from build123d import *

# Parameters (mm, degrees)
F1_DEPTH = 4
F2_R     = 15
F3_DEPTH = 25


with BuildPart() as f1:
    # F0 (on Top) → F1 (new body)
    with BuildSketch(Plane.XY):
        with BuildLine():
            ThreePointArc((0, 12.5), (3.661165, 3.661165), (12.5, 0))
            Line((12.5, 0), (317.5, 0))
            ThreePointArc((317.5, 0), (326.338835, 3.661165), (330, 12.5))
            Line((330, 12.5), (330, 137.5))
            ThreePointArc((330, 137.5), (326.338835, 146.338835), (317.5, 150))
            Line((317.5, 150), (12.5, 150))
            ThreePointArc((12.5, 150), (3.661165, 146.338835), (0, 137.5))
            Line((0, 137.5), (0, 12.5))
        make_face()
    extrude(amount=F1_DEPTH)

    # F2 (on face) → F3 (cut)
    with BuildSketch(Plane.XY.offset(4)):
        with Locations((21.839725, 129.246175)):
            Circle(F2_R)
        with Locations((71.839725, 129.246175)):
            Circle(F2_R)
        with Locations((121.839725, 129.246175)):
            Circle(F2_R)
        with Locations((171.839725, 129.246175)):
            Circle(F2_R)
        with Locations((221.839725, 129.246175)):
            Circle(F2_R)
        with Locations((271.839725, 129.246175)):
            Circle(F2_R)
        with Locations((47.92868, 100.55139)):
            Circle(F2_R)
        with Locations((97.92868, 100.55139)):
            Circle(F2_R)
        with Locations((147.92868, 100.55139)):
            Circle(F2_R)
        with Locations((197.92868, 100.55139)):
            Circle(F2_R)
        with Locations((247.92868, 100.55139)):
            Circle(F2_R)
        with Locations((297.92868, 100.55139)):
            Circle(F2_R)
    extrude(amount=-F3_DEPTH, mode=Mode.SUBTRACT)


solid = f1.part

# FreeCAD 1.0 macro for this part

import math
import FreeCAD as App
import Part
import Sketcher
from FreeCAD import Vector
Q = App.Units.Quantity

doc = App.newDocument("Part")
body = doc.addObject("PartDesign::Body", "Body")

sketch1 = body.newObject("Sketcher::SketchObject", "Sketch")
sketch1.AttachmentSupport = (doc.getObject("XY_Plane"), [""])
sketch1.MapMode = "FlatFace"
sketch1.addGeometry([
    Part.ArcOfCircle(Part.Circle(Vector(12.499999, 12.499999, 0), Vector(0, 0, 1), 12.499999), math.radians(179.999996), math.radians(270.000004)),
    Part.LineSegment(Vector(12.5, 0, 0), Vector(317.5, 0, 0)),
    Part.ArcOfCircle(Part.Circle(Vector(317.500001, 12.499999, 0), Vector(0, 0, 1), 12.499999), math.radians(-90.000004), math.radians(0.000004)),
    Part.LineSegment(Vector(330, 12.5, 0), Vector(330, 137.5, 0)),
    Part.ArcOfCircle(Part.Circle(Vector(317.500001, 137.500001, 0), Vector(0, 0, 1), 12.499999), math.radians(-0.000004), math.radians(90.000004)),
    Part.LineSegment(Vector(317.5, 150, 0), Vector(12.5, 150, 0)),
    Part.ArcOfCircle(Part.Circle(Vector(12.499999, 137.500001, 0), Vector(0, 0, 1), 12.499999), math.radians(89.999996), math.radians(180.000004)),
    Part.LineSegment(Vector(0, 137.5, 0), Vector(0, 12.5, 0)),
], False)
sketch1.addConstraint([
    Sketcher.Constraint("Tangent", 0, 2, 1, 1),
    Sketcher.Constraint("Tangent", 1, 2, 2, 1),
    Sketcher.Constraint("Tangent", 2, 2, 3, 1),
    Sketcher.Constraint("Tangent", 3, 2, 4, 1),
    Sketcher.Constraint("Tangent", 4, 2, 5, 1),
    Sketcher.Constraint("Tangent", 5, 2, 6, 1),
    Sketcher.Constraint("Tangent", 6, 2, 7, 1),
    Sketcher.Constraint("Tangent", 7, 2, 0, 1),
    Sketcher.Constraint("Horizontal", 1),
    Sketcher.Constraint("Vertical", 3),
    Sketcher.Constraint("Horizontal", 5),
    Sketcher.Constraint("Vertical", 7),
    Sketcher.Constraint("Equal", 0, 2),
    Sketcher.Constraint("Equal", 2, 4),
    Sketcher.Constraint("Equal", 4, 6),
    Sketcher.Constraint("PointOnObject", 0, 2, -1),
    Sketcher.Constraint("PointOnObject", 6, 2, -2),
    Sketcher.Constraint("Radius", 0, Q("12.499999 mm")),
    Sketcher.Constraint("DistanceX", 1, 1, 1, 2, Q("305 mm")),
    Sketcher.Constraint("DistanceY", 3, 1, 3, 2, Q("125 mm")),
])
pad1 = body.newObject("PartDesign::Pad", "Pad")
pad1.Profile = sketch1
pad1.Length = 4

sketch2 = body.newObject("Sketcher::SketchObject", "Sketch001")
sketch2.AttachmentSupport = (doc.getObject("XY_Plane"), [""])
sketch2.MapMode = "FlatFace"
sketch2.AttachmentOffset = App.Placement(Vector(0, 0, 4), App.Rotation())
sketch2.addGeometry([
    Part.Circle(Vector(21.839725, 129.246175, 0), Vector(0, 0, 1), 15),
    Part.Circle(Vector(71.839725, 129.246175, 0), Vector(0, 0, 1), 15),
    Part.Circle(Vector(121.839725, 129.246175, 0), Vector(0, 0, 1), 15),
    Part.Circle(Vector(171.839725, 129.246175, 0), Vector(0, 0, 1), 15),
    Part.Circle(Vector(221.839725, 129.246175, 0), Vector(0, 0, 1), 15),
    Part.Circle(Vector(271.839725, 129.246175, 0), Vector(0, 0, 1), 15),
    Part.Circle(Vector(47.92868, 100.55139, 0), Vector(0, 0, 1), 15),
    Part.Circle(Vector(97.92868, 100.55139, 0), Vector(0, 0, 1), 15),
    Part.Circle(Vector(147.92868, 100.55139, 0), Vector(0, 0, 1), 15),
    Part.Circle(Vector(197.92868, 100.55139, 0), Vector(0, 0, 1), 15),
    Part.Circle(Vector(247.92868, 100.55139, 0), Vector(0, 0, 1), 15),
    Part.Circle(Vector(297.92868, 100.55139, 0), Vector(0, 0, 1), 15),
], False)
sketch2.addConstraint([
    Sketcher.Constraint("Equal", 0, 1),
    Sketcher.Constraint("Equal", 1, 2),
    Sketcher.Constraint("Equal", 2, 3),
    Sketcher.Constraint("Equal", 3, 4),
    Sketcher.Constraint("Equal", 4, 5),
    Sketcher.Constraint("Equal", 5, 6),
    Sketcher.Constraint("Equal", 6, 7),
    Sketcher.Constraint("Equal", 7, 8),
    Sketcher.Constraint("Equal", 8, 9),
    Sketcher.Constraint("Equal", 9, 10),
    Sketcher.Constraint("Equal", 10, 11),
    Sketcher.Constraint("Horizontal", 0, 3, 1, 3),
    Sketcher.Constraint("Horizontal", 1, 3, 2, 3),
    Sketcher.Constraint("Horizontal", 2, 3, 3, 3),
    Sketcher.Constraint("Horizontal", 3, 3, 4, 3),
    Sketcher.Constraint("Horizontal", 4, 3, 5, 3),
    Sketcher.Constraint("Horizontal", 6, 3, 7, 3),
    Sketcher.Constraint("Horizontal", 7, 3, 8, 3),
    Sketcher.Constraint("Horizontal", 8, 3, 9, 3),
    Sketcher.Constraint("Horizontal", 9, 3, 10, 3),
    Sketcher.Constraint("Horizontal", 10, 3, 11, 3),
    Sketcher.Constraint("Diameter", 0, Q("30 mm")),
    Sketcher.Constraint("DistanceX", 0, 3, 1, 3, Q("50 mm")),
    Sketcher.Constraint("DistanceX", 1, 3, 2, 3, Q("50 mm")),
    Sketcher.Constraint("DistanceX", 2, 3, 3, 3, Q("50 mm")),
    Sketcher.Constraint("DistanceX", 3, 3, 4, 3, Q("50 mm")),
    Sketcher.Constraint("DistanceX", 4, 3, 5, 3, Q("50 mm")),
    Sketcher.Constraint("DistanceX", 6, 3, 7, 3, Q("50 mm")),
    Sketcher.Constraint("DistanceX", 7, 3, 8, 3, Q("50 mm")),
    Sketcher.Constraint("DistanceX", 8, 3, 9, 3, Q("50 mm")),
    Sketcher.Constraint("DistanceX", 9, 3, 10, 3, Q("50 mm")),
    Sketcher.Constraint("DistanceX", 10, 3, 11, 3, Q("50 mm")),
    Sketcher.Constraint("DistanceX", -1, 1, 6, 3, Q("47.92868 mm")),
    Sketcher.Constraint("DistanceY", -1, 1, 6, 3, Q("100.55139 mm")),
    Sketcher.Constraint("DistanceX", -1, 1, 0, 3, Q("21.839725 mm")),
    Sketcher.Constraint("DistanceY", -1, 1, 0, 3, Q("129.246175 mm")),
])
pocket1 = body.newObject("PartDesign::Pocket", "Pocket")
pocket1.Profile = sketch2
pocket1.Length = 25

doc.recompute()
